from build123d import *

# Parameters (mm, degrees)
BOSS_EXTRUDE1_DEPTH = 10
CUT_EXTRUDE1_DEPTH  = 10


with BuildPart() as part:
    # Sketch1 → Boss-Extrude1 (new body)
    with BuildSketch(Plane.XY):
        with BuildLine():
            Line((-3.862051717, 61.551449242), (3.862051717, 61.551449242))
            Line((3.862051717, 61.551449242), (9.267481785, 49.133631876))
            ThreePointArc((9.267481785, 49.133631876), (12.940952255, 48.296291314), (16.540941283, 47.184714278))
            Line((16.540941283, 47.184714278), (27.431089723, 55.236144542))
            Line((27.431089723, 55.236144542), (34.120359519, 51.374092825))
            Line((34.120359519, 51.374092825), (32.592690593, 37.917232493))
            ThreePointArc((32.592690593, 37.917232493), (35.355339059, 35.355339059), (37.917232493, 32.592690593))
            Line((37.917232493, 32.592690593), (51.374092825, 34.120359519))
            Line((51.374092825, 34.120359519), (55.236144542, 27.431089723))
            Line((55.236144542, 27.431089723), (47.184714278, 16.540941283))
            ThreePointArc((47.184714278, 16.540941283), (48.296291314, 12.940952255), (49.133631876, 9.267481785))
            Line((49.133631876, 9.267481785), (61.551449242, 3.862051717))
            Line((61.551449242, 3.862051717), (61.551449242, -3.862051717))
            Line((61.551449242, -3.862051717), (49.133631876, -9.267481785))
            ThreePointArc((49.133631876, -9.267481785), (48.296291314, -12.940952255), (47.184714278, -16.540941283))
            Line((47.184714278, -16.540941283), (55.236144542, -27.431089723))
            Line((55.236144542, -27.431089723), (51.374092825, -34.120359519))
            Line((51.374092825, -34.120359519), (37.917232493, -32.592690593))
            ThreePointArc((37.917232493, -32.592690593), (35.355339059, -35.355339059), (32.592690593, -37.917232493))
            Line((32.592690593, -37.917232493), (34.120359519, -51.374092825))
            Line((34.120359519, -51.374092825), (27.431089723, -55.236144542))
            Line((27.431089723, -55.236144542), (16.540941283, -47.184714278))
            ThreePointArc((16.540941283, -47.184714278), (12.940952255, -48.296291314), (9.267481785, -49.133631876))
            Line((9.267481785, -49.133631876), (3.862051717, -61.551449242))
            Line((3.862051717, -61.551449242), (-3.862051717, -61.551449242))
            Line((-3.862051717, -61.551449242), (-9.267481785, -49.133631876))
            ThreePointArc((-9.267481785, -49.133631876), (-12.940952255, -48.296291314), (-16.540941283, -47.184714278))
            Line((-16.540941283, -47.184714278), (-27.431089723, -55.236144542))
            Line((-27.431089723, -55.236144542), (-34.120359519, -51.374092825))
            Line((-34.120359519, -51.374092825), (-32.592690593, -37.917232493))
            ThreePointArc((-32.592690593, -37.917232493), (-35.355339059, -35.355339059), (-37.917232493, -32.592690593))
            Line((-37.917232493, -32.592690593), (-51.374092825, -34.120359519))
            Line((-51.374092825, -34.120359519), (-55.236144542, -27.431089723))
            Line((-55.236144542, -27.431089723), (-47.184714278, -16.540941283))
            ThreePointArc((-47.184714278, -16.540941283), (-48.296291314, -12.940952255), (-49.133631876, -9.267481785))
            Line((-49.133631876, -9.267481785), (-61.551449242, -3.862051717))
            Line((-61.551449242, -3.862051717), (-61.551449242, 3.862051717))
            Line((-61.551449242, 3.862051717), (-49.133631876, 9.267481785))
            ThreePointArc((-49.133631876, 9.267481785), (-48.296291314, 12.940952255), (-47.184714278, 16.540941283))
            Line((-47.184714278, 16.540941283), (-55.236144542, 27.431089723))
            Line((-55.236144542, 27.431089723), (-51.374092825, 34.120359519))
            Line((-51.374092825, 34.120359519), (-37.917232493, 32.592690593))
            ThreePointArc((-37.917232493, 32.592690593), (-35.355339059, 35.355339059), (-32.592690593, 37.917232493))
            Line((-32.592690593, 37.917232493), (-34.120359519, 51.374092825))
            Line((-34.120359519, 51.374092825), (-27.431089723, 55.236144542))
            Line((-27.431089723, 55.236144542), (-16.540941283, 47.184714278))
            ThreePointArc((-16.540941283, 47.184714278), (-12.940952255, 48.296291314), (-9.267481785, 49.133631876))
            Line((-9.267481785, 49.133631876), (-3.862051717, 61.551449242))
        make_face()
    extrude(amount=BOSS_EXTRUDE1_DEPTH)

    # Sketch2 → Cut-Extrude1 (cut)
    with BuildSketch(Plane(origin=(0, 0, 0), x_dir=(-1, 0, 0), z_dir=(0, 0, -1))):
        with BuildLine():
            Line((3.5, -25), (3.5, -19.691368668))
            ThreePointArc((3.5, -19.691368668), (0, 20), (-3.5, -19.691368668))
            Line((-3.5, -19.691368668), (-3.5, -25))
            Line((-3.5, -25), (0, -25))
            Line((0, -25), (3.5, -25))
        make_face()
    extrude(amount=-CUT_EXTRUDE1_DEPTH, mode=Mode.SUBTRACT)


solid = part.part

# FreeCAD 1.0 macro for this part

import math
import FreeCAD as App
import Part
import Sketcher
from FreeCAD import Vector
Q = App.Units.Quantity

doc = App.newDocument("Part")
params = doc.addObject("Spreadsheet::Sheet", "Params")
for row, (alias, value) in enumerate([
    ("sketch1_radius", "50 mm"),
    ("pad1_length", "10 mm"),
    ("sketch2_radius", "20 mm"),
    ("sketch2_width", "7 mm"),
    ("pocket1_length", "10 mm"),
], start=1):
    params.set(f"A{row}", alias)
    params.set(f"B{row}", "=" + value)
    params.setAlias(f"B{row}", alias)

body = doc.addObject("PartDesign::Body", "Body")

# Sketch on XY plane
sketch1 = body.newObject("Sketcher::SketchObject", "Sketch")
sketch1.AttachmentSupport = (doc.getObject("XY_Plane"), [""])
sketch1.MapMode = "FlatFace"
sketch1.addGeometry(Part.LineSegment(Vector(3.862052, 61.551449, 0), Vector(-3.862052, 61.551449, 0)), False)
sketch1.addGeometry(Part.LineSegment(Vector(-3.862052, 61.551449, 0), Vector(-9.267482, 49.133632, 0)), False)
sketch1.addGeometry(Part.ArcOfCircle(Part.Circle(Vector(0, 0, 0), Vector(0, 0, 1), 50), math.radians(100.681518), math.radians(109.318482)), False)
sketch1.addGeometry(Part.LineSegment(Vector(-16.540941, 47.184714, 0), Vector(-27.43109, 55.236145, 0)), False)
sketch1.addGeometry(Part.LineSegment(Vector(-27.43109, 55.236145, 0), Vector(-34.12036, 51.374093, 0)), False)
sketch1.addGeometry(Part.LineSegment(Vector(-34.12036, 51.374093, 0), Vector(-32.592691, 37.917232, 0)), False)
sketch1.addGeometry(Part.ArcOfCircle(Part.Circle(Vector(0, 0, 0), Vector(0, 0, 1), 50), math.radians(130.681518), math.radians(139.318482)), False)
sketch1.addGeometry(Part.LineSegment(Vector(-37.917232, 32.592691, 0), Vector(-51.374093, 34.12036, 0)), False)
sketch1.addGeometry(Part.LineSegment(Vector(-51.374093, 34.12036, 0), Vector(-55.236145, 27.43109, 0)), False)
sketch1.addGeometry(Part.LineSegment(Vector(-55.236145, 27.43109, 0), Vector(-47.184714, 16.540941, 0)), False)
sketch1.addGeometry(Part.ArcOfCircle(Part.Circle(Vector(0, 0, 0), Vector(0, 0, 1), 50), math.radians(160.681518), math.radians(169.318482)), False)
sketch1.addGeometry(Part.LineSegment(Vector(-49.133632, 9.267482, 0), Vector(-61.551449, 3.862052, 0)), False)
sketch1.addGeometry(Part.LineSegment(Vector(-61.551449, 3.862052, 0), Vector(-61.551449, -3.862052, 0)), False)
sketch1.addGeometry(Part.LineSegment(Vector(-61.551449, -3.862052, 0), Vector(-49.133632, -9.267482, 0)), False)
sketch1.addGeometry(Part.ArcOfCircle(Part.Circle(Vector(0, 0, 0), Vector(0, 0, 1), 50), math.radians(-169.318482), math.radians(-160.681518)), False)
sketch1.addGeometry(Part.LineSegment(Vector(-47.184714, -16.540941, 0), Vector(-55.236145, -27.43109, 0)), False)
sketch1.addGeometry(Part.LineSegment(Vector(-55.236145, -27.43109, 0), Vector(-51.374093, -34.12036, 0)), False)
sketch1.addGeometry(Part.LineSegment(Vector(-51.374093, -34.12036, 0), Vector(-37.917232, -32.592691, 0)), False)
sketch1.addGeometry(Part.ArcOfCircle(Part.Circle(Vector(0, 0, 0), Vector(0, 0, 1), 50), math.radians(-139.318482), math.radians(-130.681518)), False)
sketch1.addGeometry(Part.LineSegment(Vector(-32.592691, -37.917232, 0), Vector(-34.12036, -51.374093, 0)), False)
sketch1.addGeometry(Part.LineSegment(Vector(-34.12036, -51.374093, 0), Vector(-27.43109, -55.236145, 0)), False)
sketch1.addGeometry(Part.LineSegment(Vector(-27.43109, -55.236145, 0), Vector(-16.540941, -47.184714, 0)), False)
sketch1.addGeometry(Part.ArcOfCircle(Part.Circle(Vector(0, 0, 0), Vector(0, 0, 1), 50), math.radians(-109.318482), math.radians(-100.681518)), False)
sketch1.addGeometry(Part.LineSegment(Vector(-9.267482, -49.133632, 0), Vector(-3.862052, -61.551449, 0)), False)
sketch1.addGeometry(Part.LineSegment(Vector(-3.862052, -61.551449, 0), Vector(3.862052, -61.551449, 0)), False)
sketch1.addGeometry(Part.LineSegment(Vector(3.862052, -61.551449, 0), Vector(9.267482, -49.133632, 0)), False)
sketch1.addGeometry(Part.ArcOfCircle(Part.Circle(Vector(0, 0, 0), Vector(0, 0, 1), 50), math.radians(-79.318482), math.radians(-70.681518)), False)
sketch1.addGeometry(Part.LineSegment(Vector(16.540941, -47.184714, 0), Vector(27.43109, -55.236145, 0)), False)
sketch1.addGeometry(Part.LineSegment(Vector(27.43109, -55.236145, 0), Vector(34.12036, -51.374093, 0)), False)
sketch1.addGeometry(Part.LineSegment(Vector(34.12036, -51.374093, 0), Vector(32.592691, -37.917232, 0)), False)
sketch1.addGeometry(Part.ArcOfCircle(Part.Circle(Vector(0, 0, 0), Vector(0, 0, 1), 50), math.radians(-49.318482), math.radians(-40.681518)), False)
sketch1.addGeometry(Part.LineSegment(Vector(37.917232, -32.592691, 0), Vector(51.374093, -34.12036, 0)), False)
sketch1.addGeometry(Part.LineSegment(Vector(51.374093, -34.12036, 0), Vector(55.236145, -27.43109, 0)), False)
sketch1.addGeometry(Part.LineSegment(Vector(55.236145, -27.43109, 0), Vector(47.184714, -16.540941, 0)), False)
sketch1.addGeometry(Part.ArcOfCircle(Part.Circle(Vector(0, 0, 0), Vector(0, 0, 1), 50), math.radians(-19.318482), math.radians(-10.681518)), False)
sketch1.addGeometry(Part.LineSegment(Vector(49.133632, -9.267482, 0), Vector(61.551449, -3.862052, 0)), False)
sketch1.addGeometry(Part.LineSegment(Vector(61.551449, -3.862052, 0), Vector(61.551449, 3.862052, 0)), False)
sketch1.addGeometry(Part.LineSegment(Vector(61.551449, 3.862052, 0), Vector(49.133632, 9.267482, 0)), False)
sketch1.addGeometry(Part.ArcOfCircle(Part.Circle(Vector(0, 0, 0), Vector(0, 0, 1), 50), math.radians(10.681518), math.radians(19.318482)), False)
sketch1.addGeometry(Part.LineSegment(Vector(47.184714, 16.540941, 0), Vector(55.236145, 27.43109, 0)), False)
sketch1.addGeometry(Part.LineSegment(Vector(55.236145, 27.43109, 0), Vector(51.374093, 34.12036, 0)), False)
sketch1.addGeometry(Part.LineSegment(Vector(51.374093, 34.12036, 0), Vector(37.917232, 32.592691, 0)), False)
sketch1.addGeometry(Part.ArcOfCircle(Part.Circle(Vector(0, 0, 0), Vector(0, 0, 1), 50), math.radians(40.681518), math.radians(49.318482)), False)
sketch1.addGeometry(Part.LineSegment(Vector(32.592691, 37.917232, 0), Vector(34.12036, 51.374093, 0)), False)
sketch1.addGeometry(Part.LineSegment(Vector(34.12036, 51.374093, 0), Vector(27.43109, 55.236145, 0)), False)
sketch1.addGeometry(Part.LineSegment(Vector(27.43109, 55.236145, 0), Vector(16.540941, 47.184714, 0)), False)
sketch1.addGeometry(Part.ArcOfCircle(Part.Circle(Vector(0, 0, 0), Vector(0, 0, 1), 50), math.radians(70.681518), math.radians(79.318482)), False)
sketch1.addGeometry(Part.LineSegment(Vector(9.267482, 49.133632, 0), Vector(3.862052, 61.551449, 0)), False)
sketch1.addConstraint(Sketcher.Constraint("Coincident", 0, 2, 1, 1))
sketch1.addConstraint(Sketcher.Constraint("Coincident", 1, 2, 2, 1))
sketch1.addConstraint(Sketcher.Constraint("Coincident", 2, 2, 3, 1))
sketch1.addConstraint(Sketcher.Constraint("Coincident", 3, 2, 4, 1))
sketch1.addConstraint(Sketcher.Constraint("Coincident", 4, 2, 5, 1))
sketch1.addConstraint(Sketcher.Constraint("Coincident", 5, 2, 6, 1))
sketch1.addConstraint(Sketcher.Constraint("Coincident", 6, 2, 7, 1))
sketch1.addConstraint(Sketcher.Constraint("Coincident", 7, 2, 8, 1))
sketch1.addConstraint(Sketcher.Constraint("Coincident", 8, 2, 9, 1))
sketch1.addConstraint(Sketcher.Constraint("Coincident", 9, 2, 10, 1))
sketch1.addConstraint(Sketcher.Constraint("Coincident", 10, 2, 11, 1))
sketch1.addConstraint(Sketcher.Constraint("Coincident", 11, 2, 12, 1))
sketch1.addConstraint(Sketcher.Constraint("Coincident", 12, 2, 13, 1))
sketch1.addConstraint(Sketcher.Constraint("Coincident", 13, 2, 14, 1))
sketch1.addConstraint(Sketcher.Constraint("Coincident", 14, 2, 15, 1))
sketch1.addConstraint(Sketcher.Constraint("Coincident", 15, 2, 16, 1))
sketch1.addConstraint(Sketcher.Constraint("Coincident", 16, 2, 17, 1))
sketch1.addConstraint(Sketcher.Constraint("Coincident", 17, 2, 18, 1))
sketch1.addConstraint(Sketcher.Constraint("Coincident", 18, 2, 19, 1))
sketch1.addConstraint(Sketcher.Constraint("Coincident", 19, 2, 20, 1))
sketch1.addConstraint(Sketcher.Constraint("Coincident", 20, 2, 21, 1))
sketch1.addConstraint(Sketcher.Constraint("Coincident", 21, 2, 22, 1))
sketch1.addConstraint(Sketcher.Constraint("Coincident", 22, 2, 23, 1))
sketch1.addConstraint(Sketcher.Constraint("Coincident", 23, 2, 24, 1))
sketch1.addConstraint(Sketcher.Constraint("Coincident", 24, 2, 25, 1))
sketch1.addConstraint(Sketcher.Constraint("Coincident", 25, 2, 26, 1))
sketch1.addConstraint(Sketcher.Constraint("Coincident", 26, 2, 27, 1))
sketch1.addConstraint(Sketcher.Constraint("Coincident", 27, 2, 28, 1))
sketch1.addConstraint(Sketcher.Constraint("Coincident", 28, 2, 29, 1))
sketch1.addConstraint(Sketcher.Constraint("Coincident", 29, 2, 30, 1))
sketch1.addConstraint(Sketcher.Constraint("Coincident", 30, 2, 31, 1))
sketch1.addConstraint(Sketcher.Constraint("Coincident", 31, 2, 32, 1))
sketch1.addConstraint(Sketcher.Constraint("Coincident", 32, 2, 33, 1))
sketch1.addConstraint(Sketcher.Constraint("Coincident", 33, 2, 34, 1))
sketch1.addConstraint(Sketcher.Constraint("Coincident", 34, 2, 35, 1))
sketch1.addConstraint(Sketcher.Constraint("Coincident", 35, 2, 36, 1))
sketch1.addConstraint(Sketcher.Constraint("Coincident", 36, 2, 37, 1))
sketch1.addConstraint(Sketcher.Constraint("Coincident", 37, 2, 38, 1))
sketch1.addConstraint(Sketcher.Constraint("Coincident", 38, 2, 39, 1))
sketch1.addConstraint(Sketcher.Constraint("Coincident", 39, 2, 40, 1))
sketch1.addConstraint(Sketcher.Constraint("Coincident", 40, 2, 41, 1))
sketch1.addConstraint(Sketcher.Constraint("Coincident", 41, 2, 42, 1))
sketch1.addConstraint(Sketcher.Constraint("Coincident", 42, 2, 43, 1))
sketch1.addConstraint(Sketcher.Constraint("Coincident", 43, 2, 44, 1))
sketch1.addConstraint(Sketcher.Constraint("Coincident", 44, 2, 45, 1))
sketch1.addConstraint(Sketcher.Constraint("Coincident", 45, 2, 46, 1))
sketch1.addConstraint(Sketcher.Constraint("Coincident", 46, 2, 47, 1))
sketch1.addConstraint(Sketcher.Constraint("Coincident", 47, 2, 0, 1))
sketch1.addConstraint(Sketcher.Constraint("Horizontal", 0))
sketch1.addConstraint(Sketcher.Constraint("Vertical", 12))
sketch1.addConstraint(Sketcher.Constraint("Horizontal", 24))
sketch1.addConstraint(Sketcher.Constraint("Vertical", 36))
sketch1.addConstraint(Sketcher.Constraint("Coincident", 2, 3, -1, 1))
sketch1.addConstraint(Sketcher.Constraint("Coincident", 6, 3, -1, 1))
sketch1.addConstraint(Sketcher.Constraint("Coincident", 10, 3, -1, 1))
sketch1.addConstraint(Sketcher.Constraint("Coincident", 14, 3, -1, 1))
sketch1.addConstraint(Sketcher.Constraint("Coincident", 18, 3, -1, 1))
sketch1.addConstraint(Sketcher.Constraint("Coincident", 22, 3, -1, 1))
sketch1.addConstraint(Sketcher.Constraint("Coincident", 26, 3, -1, 1))
sketch1.addConstraint(Sketcher.Constraint("Coincident", 30, 3, -1, 1))
sketch1.addConstraint(Sketcher.Constraint("Coincident", 34, 3, -1, 1))
sketch1.addConstraint(Sketcher.Constraint("Coincident", 38, 3, -1, 1))
sketch1.addConstraint(Sketcher.Constraint("Coincident", 42, 3, -1, 1))
sketch1.addConstraint(Sketcher.Constraint("Coincident", 46, 3, -1, 1))
sketch1.addConstraint(Sketcher.Constraint("Equal", 2, 6))
sketch1.addConstraint(Sketcher.Constraint("Equal", 6, 10))
sketch1.addConstraint(Sketcher.Constraint("Equal", 10, 14))
sketch1.addConstraint(Sketcher.Constraint("Equal", 14, 18))
sketch1.addConstraint(Sketcher.Constraint("Equal", 18, 22))
sketch1.addConstraint(Sketcher.Constraint("Equal", 22, 26))
sketch1.addConstraint(Sketcher.Constraint("Equal", 26, 30))
sketch1.addConstraint(Sketcher.Constraint("Equal", 30, 34))
sketch1.addConstraint(Sketcher.Constraint("Equal", 34, 38))
sketch1.addConstraint(Sketcher.Constraint("Equal", 38, 42))
sketch1.addConstraint(Sketcher.Constraint("Equal", 42, 46))
sketch1.addConstraint(Sketcher.Constraint("Symmetric", 0, 2, 24, 2, -1, 1))
sketch1.addConstraint(Sketcher.Constraint("Symmetric", 3, 2, 27, 2, -1, 1))
sketch1.addConstraint(Sketcher.Constraint("Symmetric", 4, 2, 28, 2, -1, 1))
sketch1.addConstraint(Sketcher.Constraint("Symmetric", 7, 2, 31, 2, -1, 1))
sketch1.addConstraint(Sketcher.Constraint("Symmetric", 8, 2, 32, 2, -1, 1))
sketch1.addConstraint(Sketcher.Constraint("Symmetric", 11, 2, 35, 2, -1, 1))
sketch1.addConstraint(Sketcher.Constraint("Symmetric", 15, 2, 39, 2, -1, 1))
sketch1.addConstraint(Sketcher.Constraint("Symmetric", 16, 2, 40, 2, -1, 1))
sketch1.addConstraint(Sketcher.Constraint("Symmetric", 19, 2, 43, 2, -1, 1))
sketch1.addConstraint(Sketcher.Constraint("Symmetric", 20, 2, 44, 2, -1, 1))
sketch1.addConstraint(Sketcher.Constraint("Symmetric", 20, 2, 27, 2, -2))
sketch1.addConstraint(Sketcher.Constraint("Symmetric", 19, 2, 28, 2, -2))
sketch1.addConstraint(Sketcher.Constraint("Symmetric", 16, 2, 31, 2, -2))
sketch1.addConstraint(Sketcher.Constraint("Symmetric", 15, 2, 32, 2, -2))
sketch1.addConstraint(Sketcher.Constraint("Perpendicular", 1, 13))
sketch1.addConstraint(Sketcher.Constraint("Perpendicular", 3, 15))
sketch1.addConstraint(Sketcher.Constraint("Perpendicular", 4, 16))
sketch1.addConstraint(Sketcher.Constraint("Perpendicular", 5, 17))
sketch1.addConstraint(Sketcher.Constraint("Perpendicular", 7, 19))
sketch1.addConstraint(Sketcher.Constraint("Perpendicular", 9, 21))
sketch1.addConstraint(Sketcher.Constraint("Perpendicular", 11, 23))
sketch1.addConstraint(Sketcher.Constraint("Perpendicular", 13, 25))
sketch1.addConstraint(Sketcher.Constraint("Perpendicular", 15, 27))
sketch1.addConstraint(Sketcher.Constraint("Perpendicular", 17, 29))
sketch1.addConstraint(Sketcher.Constraint("Perpendicular", 19, 31))
sketch1.addConstraint(Sketcher.Constraint("Perpendicular", 21, 33))
sketch1.addConstraint(Sketcher.Constraint("Perpendicular", 23, 35))
sketch1.addConstraint(Sketcher.Constraint("Perpendicular", 25, 37))
sketch1.addConstraint(Sketcher.Constraint("Perpendicular", 27, 39))
sketch1.addConstraint(Sketcher.Constraint("Perpendicular", 29, 41))
sketch1.addConstraint(Sketcher.Constraint("Perpendicular", 31, 43))
sketch1.addConstraint(Sketcher.Constraint("Perpendicular", 33, 45))
sketch1.addConstraint(Sketcher.Constraint("Perpendicular", 35, 47))
sketch1.addConstraint(Sketcher.Constraint("Horizontal", 22, 2, 25, 2))
sketch1.addConstraint(Sketcher.Constraint("Horizontal", 21, 2, 26, 2))
sketch1.addConstraint(Sketcher.Constraint("Horizontal", 18, 2, 29, 2))
sketch1.addConstraint(Sketcher.Constraint("Horizontal", 13, 2, 34, 2))
sketch1.addConstraint(Sketcher.Constraint("Horizontal", 12, 2, 35, 2))
sketch1.addConstraint(Sketcher.Constraint("Horizontal", 11, 2, 36, 2))
sketch1.addConstraint(Sketcher.Constraint("Horizontal", 1, 2, 46, 2))
sketch1.addConstraint(Sketcher.Constraint("Equal", 24, 12))
sketch1.addConstraint(Sketcher.Constraint("Equal", 1, 3))
sketch1.addConstraint(Sketcher.Constraint("Equal", 3, 5))
sketch1.addConstraint(Sketcher.Constraint("Equal", 5, 7))
sketch1.addConstraint(Sketcher.Constraint("Equal", 4, 8))
sketch1.addConstraint(Sketcher.Constraint("Equal", 7, 9))
sketch1.addConstraint(Sketcher.Constraint("Equal", 9, 11))
sketch1.addConstraint(Sketcher.Constraint("Radius", 2, Q("50 mm")))
sketch1.addConstraint(Sketcher.Constraint("Angle", 4, Q("-150 deg")))
sketch1.addConstraint(Sketcher.Constraint("DistanceX", 5, 2, 3, 2, Q("5.161601 mm")))
sketch1.addConstraint(Sketcher.Constraint("DistanceY", 5, 2, 1, 2, Q("11.216399 mm")))
sketch1.addConstraint(Sketcher.Constraint("DistanceX", 0, 2, 0, 1, Q("7.724103 mm")))
sketch1.addConstraint(Sketcher.Constraint("DistanceY", -1, 1, 0, 2, Q("61.551449 mm")))
sketch1.addConstraint(Sketcher.Constraint("DistanceX", 1, 2, -1, 1, Q("9.267482 mm")))
sketch1.addConstraint(Sketcher.Constraint("DistanceX", 2, 2, -1, 1, Q("16.540941 mm")))
sketch1.setExpression("Constraints[122]", "Params.sketch1_radius")
pad1 = body.newObject("PartDesign::Pad", "Pad")
pad1.Profile = sketch1
pad1.setExpression("Length", "Params.pad1_length")

# Sketch on XY plane
sketch2 = body.newObject("Sketcher::SketchObject", "Sketch001")
sketch2.AttachmentSupport = (doc.getObject("XY_Plane"), [""])
sketch2.MapMode = "FlatFace"
sketch2.addGeometry(Part.LineSegment(Vector(-3.5, -25, 0), Vector(-3.5, -19.691369, 0)), False)
sketch2.addGeometry(Part.ArcOfCircle(Part.Circle(Vector(0, 0, 0), Vector(0, 0, 1), 20), math.radians(-79.921342), math.radians(259.921342)), False)
sketch2.addGeometry(Part.LineSegment(Vector(3.5, -19.691369, 0), Vector(3.5, -25, 0)), False)
sketch2.addGeometry(Part.LineSegment(Vector(3.5, -25, 0), Vector(-3.5, -25, 0)), False)
sketch2.addConstraint(Sketcher.Constraint("Coincident", 0, 2, 1, 2))
sketch2.addConstraint(Sketcher.Constraint("Coincident", 1, 1, 2, 1))
sketch2.addConstraint(Sketcher.Constraint("Coincident", 2, 2, 3, 1))
sketch2.addConstraint(Sketcher.Constraint("Coincident", 3, 2, 0, 1))
sketch2.addConstraint(Sketcher.Constraint("Vertical", 0))
sketch2.addConstraint(Sketcher.Constraint("Vertical", 2))
sketch2.addConstraint(Sketcher.Constraint("Horizontal", 3))
sketch2.addConstraint(Sketcher.Constraint("Coincident", 1, 3, -1, 1))
sketch2.addConstraint(Sketcher.Constraint("Horizontal", 0, 2, 1, 1))
sketch2.addConstraint(Sketcher.Constraint("Radius", 1, Q("20 mm")))
sketch2.addConstraint(Sketcher.Constraint("DistanceX", 3, 2, 3, 1, Q("7 mm")))
sketch2.addConstraint(Sketcher.Constraint("DistanceY", 2, 2, -1, 1, Q("25 mm")))
sketch2.setExpression("Constraints[9]", "Params.sketch2_radius")
sketch2.setExpression("Constraints[10]", "Params.sketch2_width")
pocket1 = body.newObject("PartDesign::Pocket", "Pocket")
pocket1.Profile = sketch2
pocket1.setExpression("Length", "Params.pocket1_length")
pocket1.Reversed = True

doc.recompute()
